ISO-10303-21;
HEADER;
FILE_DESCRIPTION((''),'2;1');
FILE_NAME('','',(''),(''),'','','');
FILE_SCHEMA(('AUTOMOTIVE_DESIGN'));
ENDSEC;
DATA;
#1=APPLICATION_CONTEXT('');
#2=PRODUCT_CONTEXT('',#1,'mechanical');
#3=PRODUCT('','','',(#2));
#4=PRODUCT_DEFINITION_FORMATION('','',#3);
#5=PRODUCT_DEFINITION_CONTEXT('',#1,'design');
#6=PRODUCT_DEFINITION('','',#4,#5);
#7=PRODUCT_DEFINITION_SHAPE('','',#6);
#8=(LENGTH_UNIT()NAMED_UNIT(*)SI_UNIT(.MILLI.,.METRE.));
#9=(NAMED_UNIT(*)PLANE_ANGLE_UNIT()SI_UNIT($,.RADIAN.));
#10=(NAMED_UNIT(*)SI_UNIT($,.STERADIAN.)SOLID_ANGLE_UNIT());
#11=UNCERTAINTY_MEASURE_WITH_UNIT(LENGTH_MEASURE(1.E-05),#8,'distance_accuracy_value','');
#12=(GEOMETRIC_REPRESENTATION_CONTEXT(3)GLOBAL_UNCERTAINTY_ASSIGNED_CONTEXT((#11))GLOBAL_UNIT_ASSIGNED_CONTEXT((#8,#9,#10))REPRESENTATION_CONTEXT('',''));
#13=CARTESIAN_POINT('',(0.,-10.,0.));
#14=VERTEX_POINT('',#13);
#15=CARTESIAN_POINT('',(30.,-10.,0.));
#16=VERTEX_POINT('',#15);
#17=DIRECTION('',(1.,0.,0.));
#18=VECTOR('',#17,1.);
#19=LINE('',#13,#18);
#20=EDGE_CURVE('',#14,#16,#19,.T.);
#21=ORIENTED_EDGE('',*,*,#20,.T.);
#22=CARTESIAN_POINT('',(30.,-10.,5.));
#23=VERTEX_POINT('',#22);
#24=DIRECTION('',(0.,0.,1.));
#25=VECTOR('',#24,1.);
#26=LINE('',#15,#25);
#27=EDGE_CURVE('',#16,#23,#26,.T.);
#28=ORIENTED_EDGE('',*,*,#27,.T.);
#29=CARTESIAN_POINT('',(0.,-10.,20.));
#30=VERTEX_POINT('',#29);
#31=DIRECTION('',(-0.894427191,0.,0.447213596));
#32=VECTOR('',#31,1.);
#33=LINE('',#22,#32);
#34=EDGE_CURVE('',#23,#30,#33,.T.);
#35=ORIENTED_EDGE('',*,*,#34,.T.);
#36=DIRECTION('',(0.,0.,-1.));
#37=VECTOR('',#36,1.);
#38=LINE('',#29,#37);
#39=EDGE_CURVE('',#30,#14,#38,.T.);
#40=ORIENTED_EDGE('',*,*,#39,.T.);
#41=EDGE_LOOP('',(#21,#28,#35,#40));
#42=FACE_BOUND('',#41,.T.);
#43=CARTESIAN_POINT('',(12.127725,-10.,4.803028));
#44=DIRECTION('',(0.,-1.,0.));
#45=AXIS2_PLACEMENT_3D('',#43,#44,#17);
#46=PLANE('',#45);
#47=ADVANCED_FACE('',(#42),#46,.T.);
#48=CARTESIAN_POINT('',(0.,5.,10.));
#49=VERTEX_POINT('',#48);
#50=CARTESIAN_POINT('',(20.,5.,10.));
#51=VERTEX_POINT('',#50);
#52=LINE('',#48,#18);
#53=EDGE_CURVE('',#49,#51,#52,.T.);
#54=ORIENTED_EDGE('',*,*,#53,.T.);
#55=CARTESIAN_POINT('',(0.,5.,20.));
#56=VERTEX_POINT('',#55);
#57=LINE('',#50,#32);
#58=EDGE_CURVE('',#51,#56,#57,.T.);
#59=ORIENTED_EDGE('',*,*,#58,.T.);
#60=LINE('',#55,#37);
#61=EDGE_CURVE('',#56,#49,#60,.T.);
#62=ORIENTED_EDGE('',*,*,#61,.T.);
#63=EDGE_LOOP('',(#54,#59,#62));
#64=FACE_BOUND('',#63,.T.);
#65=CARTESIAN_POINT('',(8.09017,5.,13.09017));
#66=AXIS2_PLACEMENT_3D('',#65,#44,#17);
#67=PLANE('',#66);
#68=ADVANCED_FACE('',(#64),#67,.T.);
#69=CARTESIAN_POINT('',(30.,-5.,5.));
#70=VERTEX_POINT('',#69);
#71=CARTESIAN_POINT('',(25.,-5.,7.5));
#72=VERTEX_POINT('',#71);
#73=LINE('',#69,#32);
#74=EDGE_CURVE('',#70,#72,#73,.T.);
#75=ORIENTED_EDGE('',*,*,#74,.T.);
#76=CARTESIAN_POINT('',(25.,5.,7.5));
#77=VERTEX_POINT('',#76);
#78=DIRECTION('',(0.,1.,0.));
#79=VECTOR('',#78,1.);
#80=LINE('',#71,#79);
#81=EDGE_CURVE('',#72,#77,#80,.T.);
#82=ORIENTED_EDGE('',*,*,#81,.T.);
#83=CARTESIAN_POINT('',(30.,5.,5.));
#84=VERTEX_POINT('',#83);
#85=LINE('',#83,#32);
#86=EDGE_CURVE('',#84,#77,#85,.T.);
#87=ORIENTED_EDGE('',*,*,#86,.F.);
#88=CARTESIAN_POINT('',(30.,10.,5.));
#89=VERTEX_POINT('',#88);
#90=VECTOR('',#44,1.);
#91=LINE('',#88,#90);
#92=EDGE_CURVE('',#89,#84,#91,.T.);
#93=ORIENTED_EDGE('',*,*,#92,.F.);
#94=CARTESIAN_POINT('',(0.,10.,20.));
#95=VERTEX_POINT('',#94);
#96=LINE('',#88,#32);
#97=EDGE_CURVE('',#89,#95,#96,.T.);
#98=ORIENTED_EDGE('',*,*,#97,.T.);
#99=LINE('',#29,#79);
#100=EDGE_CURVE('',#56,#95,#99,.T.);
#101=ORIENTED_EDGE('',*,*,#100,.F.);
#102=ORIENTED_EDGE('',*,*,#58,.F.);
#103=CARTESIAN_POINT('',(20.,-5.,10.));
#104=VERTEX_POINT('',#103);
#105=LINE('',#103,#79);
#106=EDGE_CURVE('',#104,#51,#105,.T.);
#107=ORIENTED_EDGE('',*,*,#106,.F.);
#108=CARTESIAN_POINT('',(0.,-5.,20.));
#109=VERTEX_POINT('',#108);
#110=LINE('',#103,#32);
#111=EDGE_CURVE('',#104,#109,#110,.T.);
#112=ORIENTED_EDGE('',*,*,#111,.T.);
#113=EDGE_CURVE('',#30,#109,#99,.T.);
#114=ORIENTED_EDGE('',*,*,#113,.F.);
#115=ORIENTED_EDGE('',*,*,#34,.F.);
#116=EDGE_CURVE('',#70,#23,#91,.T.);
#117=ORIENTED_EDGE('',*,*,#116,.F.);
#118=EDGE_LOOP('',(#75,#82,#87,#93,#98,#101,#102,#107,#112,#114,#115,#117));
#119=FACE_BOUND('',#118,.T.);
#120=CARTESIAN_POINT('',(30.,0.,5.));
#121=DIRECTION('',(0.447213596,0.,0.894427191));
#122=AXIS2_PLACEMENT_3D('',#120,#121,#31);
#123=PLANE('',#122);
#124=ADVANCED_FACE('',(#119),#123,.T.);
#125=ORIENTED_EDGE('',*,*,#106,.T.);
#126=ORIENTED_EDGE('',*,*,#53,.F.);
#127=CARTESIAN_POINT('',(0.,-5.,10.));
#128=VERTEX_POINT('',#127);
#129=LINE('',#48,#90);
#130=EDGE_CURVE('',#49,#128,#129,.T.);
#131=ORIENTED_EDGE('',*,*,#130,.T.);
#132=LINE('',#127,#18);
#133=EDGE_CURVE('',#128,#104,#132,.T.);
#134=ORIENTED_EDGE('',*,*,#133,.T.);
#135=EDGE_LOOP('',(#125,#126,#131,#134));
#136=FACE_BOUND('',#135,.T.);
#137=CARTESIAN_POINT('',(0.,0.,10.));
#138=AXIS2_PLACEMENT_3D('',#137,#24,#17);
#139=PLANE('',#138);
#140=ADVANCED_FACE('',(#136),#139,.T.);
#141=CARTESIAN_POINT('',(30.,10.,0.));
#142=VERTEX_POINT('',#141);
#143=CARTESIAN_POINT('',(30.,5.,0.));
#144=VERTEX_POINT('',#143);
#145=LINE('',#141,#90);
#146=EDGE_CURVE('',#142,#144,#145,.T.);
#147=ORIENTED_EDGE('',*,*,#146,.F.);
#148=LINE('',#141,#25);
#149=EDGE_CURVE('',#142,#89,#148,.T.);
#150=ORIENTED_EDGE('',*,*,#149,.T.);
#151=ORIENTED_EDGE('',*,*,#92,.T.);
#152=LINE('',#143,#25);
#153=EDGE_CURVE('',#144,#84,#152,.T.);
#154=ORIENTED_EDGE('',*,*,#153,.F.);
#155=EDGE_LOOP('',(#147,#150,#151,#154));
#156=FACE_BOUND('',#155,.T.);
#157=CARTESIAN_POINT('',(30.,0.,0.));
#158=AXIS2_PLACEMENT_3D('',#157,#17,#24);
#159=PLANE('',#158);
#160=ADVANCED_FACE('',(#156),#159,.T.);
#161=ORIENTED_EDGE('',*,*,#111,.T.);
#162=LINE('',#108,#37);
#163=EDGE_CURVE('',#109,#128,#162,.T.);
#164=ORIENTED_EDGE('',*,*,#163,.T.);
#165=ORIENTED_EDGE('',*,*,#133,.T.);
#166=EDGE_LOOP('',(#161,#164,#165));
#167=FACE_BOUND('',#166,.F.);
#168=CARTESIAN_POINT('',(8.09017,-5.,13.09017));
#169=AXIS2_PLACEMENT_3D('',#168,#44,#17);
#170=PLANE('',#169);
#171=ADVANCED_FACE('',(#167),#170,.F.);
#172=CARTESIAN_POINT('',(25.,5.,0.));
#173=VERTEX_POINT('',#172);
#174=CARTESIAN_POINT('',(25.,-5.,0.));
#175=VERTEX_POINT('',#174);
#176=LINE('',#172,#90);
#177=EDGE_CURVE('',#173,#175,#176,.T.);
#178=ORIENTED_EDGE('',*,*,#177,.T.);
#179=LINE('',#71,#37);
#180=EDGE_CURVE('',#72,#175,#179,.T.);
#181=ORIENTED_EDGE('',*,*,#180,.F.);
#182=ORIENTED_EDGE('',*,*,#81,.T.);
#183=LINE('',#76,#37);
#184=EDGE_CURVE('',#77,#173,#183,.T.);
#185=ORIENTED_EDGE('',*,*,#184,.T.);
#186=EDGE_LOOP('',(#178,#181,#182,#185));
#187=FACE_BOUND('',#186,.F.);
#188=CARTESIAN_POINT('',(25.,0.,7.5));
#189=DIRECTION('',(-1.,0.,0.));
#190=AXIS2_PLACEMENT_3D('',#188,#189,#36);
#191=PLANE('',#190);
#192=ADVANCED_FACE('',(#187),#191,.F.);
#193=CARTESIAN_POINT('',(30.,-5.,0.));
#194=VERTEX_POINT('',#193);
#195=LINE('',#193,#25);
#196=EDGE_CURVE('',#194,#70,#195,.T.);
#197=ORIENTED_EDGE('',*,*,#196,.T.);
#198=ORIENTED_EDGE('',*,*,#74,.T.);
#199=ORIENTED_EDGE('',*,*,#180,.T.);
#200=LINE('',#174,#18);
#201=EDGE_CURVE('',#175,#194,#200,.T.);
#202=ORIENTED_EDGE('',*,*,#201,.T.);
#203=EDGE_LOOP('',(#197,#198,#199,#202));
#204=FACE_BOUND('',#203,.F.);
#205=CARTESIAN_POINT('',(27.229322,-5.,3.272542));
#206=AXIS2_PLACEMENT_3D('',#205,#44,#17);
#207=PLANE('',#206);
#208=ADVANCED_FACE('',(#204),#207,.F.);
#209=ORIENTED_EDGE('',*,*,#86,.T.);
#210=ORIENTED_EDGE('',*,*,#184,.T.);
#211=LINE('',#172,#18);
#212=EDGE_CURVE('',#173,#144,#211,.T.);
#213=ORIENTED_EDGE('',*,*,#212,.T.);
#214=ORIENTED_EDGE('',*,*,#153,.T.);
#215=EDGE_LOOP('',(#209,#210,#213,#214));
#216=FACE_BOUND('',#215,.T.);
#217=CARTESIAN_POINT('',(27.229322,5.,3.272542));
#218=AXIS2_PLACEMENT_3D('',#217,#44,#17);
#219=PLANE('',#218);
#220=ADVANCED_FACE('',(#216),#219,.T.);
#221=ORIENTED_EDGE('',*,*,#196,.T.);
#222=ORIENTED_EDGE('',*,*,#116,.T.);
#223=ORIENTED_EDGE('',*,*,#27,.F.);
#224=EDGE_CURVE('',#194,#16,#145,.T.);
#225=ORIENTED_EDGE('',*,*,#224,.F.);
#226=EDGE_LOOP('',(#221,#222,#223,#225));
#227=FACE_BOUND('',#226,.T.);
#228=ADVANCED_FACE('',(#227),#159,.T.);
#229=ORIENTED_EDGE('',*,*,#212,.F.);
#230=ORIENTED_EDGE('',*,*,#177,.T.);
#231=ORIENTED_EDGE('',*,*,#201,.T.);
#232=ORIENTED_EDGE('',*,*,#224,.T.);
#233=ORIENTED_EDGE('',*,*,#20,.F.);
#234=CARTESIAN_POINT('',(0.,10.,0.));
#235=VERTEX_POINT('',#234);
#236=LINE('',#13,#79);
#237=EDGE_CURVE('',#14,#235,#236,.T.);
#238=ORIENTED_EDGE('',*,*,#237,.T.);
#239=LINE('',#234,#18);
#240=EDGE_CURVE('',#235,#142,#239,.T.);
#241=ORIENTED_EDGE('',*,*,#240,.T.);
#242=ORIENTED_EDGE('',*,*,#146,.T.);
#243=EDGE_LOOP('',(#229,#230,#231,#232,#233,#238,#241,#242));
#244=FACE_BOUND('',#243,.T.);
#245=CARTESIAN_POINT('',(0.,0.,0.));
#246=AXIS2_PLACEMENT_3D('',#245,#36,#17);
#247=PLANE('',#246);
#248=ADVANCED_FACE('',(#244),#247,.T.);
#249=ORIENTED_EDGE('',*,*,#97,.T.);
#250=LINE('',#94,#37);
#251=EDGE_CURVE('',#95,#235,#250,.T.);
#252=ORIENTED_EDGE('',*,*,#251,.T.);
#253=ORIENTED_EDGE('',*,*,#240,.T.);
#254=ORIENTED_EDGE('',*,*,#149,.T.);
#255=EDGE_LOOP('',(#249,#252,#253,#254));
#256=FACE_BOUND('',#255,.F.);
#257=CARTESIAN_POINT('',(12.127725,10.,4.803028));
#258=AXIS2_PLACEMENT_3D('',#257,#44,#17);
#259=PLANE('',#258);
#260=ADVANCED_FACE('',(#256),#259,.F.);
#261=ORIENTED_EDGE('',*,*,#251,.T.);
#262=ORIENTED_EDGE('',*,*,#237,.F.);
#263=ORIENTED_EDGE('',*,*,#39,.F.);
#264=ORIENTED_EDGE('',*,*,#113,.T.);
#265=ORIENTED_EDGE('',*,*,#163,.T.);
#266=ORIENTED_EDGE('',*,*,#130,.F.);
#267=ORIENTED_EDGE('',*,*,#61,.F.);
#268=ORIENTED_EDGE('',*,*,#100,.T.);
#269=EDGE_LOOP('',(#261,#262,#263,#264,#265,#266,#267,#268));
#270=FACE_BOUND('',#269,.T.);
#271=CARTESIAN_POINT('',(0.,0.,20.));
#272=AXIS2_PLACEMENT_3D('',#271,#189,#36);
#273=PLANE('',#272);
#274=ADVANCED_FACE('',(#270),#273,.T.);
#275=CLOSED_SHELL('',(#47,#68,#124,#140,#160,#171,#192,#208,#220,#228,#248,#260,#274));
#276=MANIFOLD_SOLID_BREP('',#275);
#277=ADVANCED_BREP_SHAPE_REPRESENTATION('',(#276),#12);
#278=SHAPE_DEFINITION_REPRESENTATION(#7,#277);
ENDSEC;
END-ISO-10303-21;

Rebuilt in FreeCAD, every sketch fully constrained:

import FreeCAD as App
import Part
import Sketcher
from FreeCAD import Vector


def add_polygon(sketch, points):
    """Adds a closed chain of lines whose ends are joined by coincident constraints."""
    first, n = sketch.GeometryCount, len(points)
    for a, b in zip(points, points[1:] + points[:1]):
        sketch.addGeometry(Part.LineSegment(App.Vector(*a, 0), App.Vector(*b, 0)), False)
    for i in range(n):
        sketch.addConstraint(Sketcher.Constraint("Coincident", first + i, 2, first + (i + 1) % n, 1))

doc = App.newDocument("Part")
body = doc.addObject("PartDesign::Body", "Body")

# Sketch on XZ plane
sketch1 = body.newObject("Sketcher::SketchObject", "Sketch")
sketch1.AttachmentSupport = (doc.getObject("XZ_Plane"), [""])
sketch1.MapMode = "FlatFace"
add_polygon(sketch1, [(0, 0), (30, 0), (30, 5), (0, 20)])  # lines 0-3
sketch1.addConstraint(Sketcher.Constraint("Horizontal", 0))
sketch1.addConstraint(Sketcher.Constraint("Vertical", 1))
sketch1.addConstraint(Sketcher.Constraint("Vertical", 3))
sketch1.addConstraint(Sketcher.Constraint("Coincident", 3, 2, -1, 1))
sketch1.addConstraint(Sketcher.Constraint("DistanceX", 0, 1, 0, 2, 30.0))
sketch1.addConstraint(Sketcher.Constraint("DistanceY", 1, 1, 1, 2, 5.0))
sketch1.addConstraint(Sketcher.Constraint("DistanceY", 3, 2, 3, 1, 20.0))
pad1 = body.newObject("PartDesign::Pad", "Pad")
pad1.Profile = sketch1
pad1.Length = 20
pad1.Midplane = True

# Sketch on XZ plane
sketch2 = body.newObject("Sketcher::SketchObject", "Sketch001")
sketch2.AttachmentSupport = (doc.getObject("XZ_Plane"), [""])
sketch2.MapMode = "FlatFace"
add_polygon(sketch2, [(0, 20), (0, 10), (20, 10)])  # lines 0-2
add_polygon(sketch2, [(25, 8), (25, 0), (30, 0), (30, 5)])  # lines 3-6
sketch2.addConstraint(Sketcher.Constraint("Vertical", 0))
sketch2.addConstraint(Sketcher.Constraint("Horizontal", 1))
sketch2.addConstraint(Sketcher.Constraint("Vertical", 3))
sketch2.addConstraint(Sketcher.Constraint("Horizontal", 4))
sketch2.addConstraint(Sketcher.Constraint("Vertical", 5))
sketch2.addConstraint(Sketcher.Constraint("PointOnObject", 0, 2, -2))
sketch2.addConstraint(Sketcher.Constraint("PointOnObject", 3, 2, -1))
sketch2.addConstraint(Sketcher.Constraint("Parallel", 2, 6))
sketch2.addConstraint(Sketcher.Constraint("Equal", 4, 5))
sketch2.addConstraint(Sketcher.Constraint("DistanceX", 1, 1, 1, 2, 20.0))
sketch2.addConstraint(Sketcher.Constraint("DistanceX", 4, 1, 4, 2, 5.0))
sketch2.addConstraint(Sketcher.Constraint("DistanceY", 0, 2, 0, 1, 10.0))
sketch2.addConstraint(Sketcher.Constraint("DistanceY", -1, 1, 0, 2, 10.0))
sketch2.addConstraint(Sketcher.Constraint("DistanceX", -1, 1, 3, 2, 25.0))
pocket1 = body.newObject("PartDesign::Pocket", "Pocket")
pocket1.Profile = sketch2
pocket1.Length = 10
pocket1.Midplane = True

doc.recompute()
